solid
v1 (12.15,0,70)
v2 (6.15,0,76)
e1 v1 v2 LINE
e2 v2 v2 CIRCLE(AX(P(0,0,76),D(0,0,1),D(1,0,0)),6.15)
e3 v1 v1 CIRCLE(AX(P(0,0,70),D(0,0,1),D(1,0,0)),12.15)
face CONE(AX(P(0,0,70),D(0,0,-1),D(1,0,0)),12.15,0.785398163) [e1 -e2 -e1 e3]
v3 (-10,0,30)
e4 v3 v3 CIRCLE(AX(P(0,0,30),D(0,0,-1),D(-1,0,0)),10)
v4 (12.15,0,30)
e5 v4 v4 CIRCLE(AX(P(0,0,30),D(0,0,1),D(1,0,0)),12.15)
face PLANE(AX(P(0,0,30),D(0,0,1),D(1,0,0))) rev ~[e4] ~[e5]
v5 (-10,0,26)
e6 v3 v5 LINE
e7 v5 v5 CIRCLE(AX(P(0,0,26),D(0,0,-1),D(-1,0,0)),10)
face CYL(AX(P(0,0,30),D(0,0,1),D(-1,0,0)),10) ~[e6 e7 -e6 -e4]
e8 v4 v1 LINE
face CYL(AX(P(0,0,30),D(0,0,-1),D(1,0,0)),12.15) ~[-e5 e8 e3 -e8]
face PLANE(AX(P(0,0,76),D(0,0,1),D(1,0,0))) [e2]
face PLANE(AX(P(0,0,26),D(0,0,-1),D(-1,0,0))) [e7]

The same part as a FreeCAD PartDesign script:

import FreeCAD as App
import Part
import Sketcher
Q = App.Units.Quantity


def edges_at(feature, points):
    """Names of the edges that pass closest to the given points."""
    edges = feature.Shape.Edges
    near = lambda p: min(range(len(edges)), key=lambda i: edges[i].distToShape(Part.Vertex(*p))[0])
    return sorted({f"Edge{near(p) + 1}" for p in points})

doc = App.newDocument("Part")
body = doc.addObject("PartDesign::Body", "Body")

sketch1 = body.newObject("Sketcher::SketchObject", "Sketch")
sketch1.AttachmentSupport = (doc.getObject("XY_Plane"), [""])
sketch1.MapMode = "FlatFace"
sketch1.AttachmentOffset = App.Placement(App.Vector(0, 0, 30), App.Rotation())
sketch1.addGeometry(Part.Circle(App.Vector(0, 0, 0), App.Vector(0, 0, 1), 12.15), False)
sketch1.addConstraint([
    Sketcher.Constraint("Coincident", 0, 3, -1, 1),
    Sketcher.Constraint("Diameter", 0, Q("24.3 mm")),
])
pad1 = body.newObject("PartDesign::Pad", "Pad")
pad1.Profile = sketch1
pad1.Length = 46
doc.recompute()

chamfer = body.newObject("PartDesign::Chamfer", "Chamfer")
chamfer.Base = (pad1, edges_at(pad1, [(-12.15, 0, 76)]))
chamfer.Size = 6

sketch2 = body.newObject("Sketcher::SketchObject", "Sketch001")
sketch2.AttachmentSupport = (doc.getObject("XY_Plane"), [""])
sketch2.MapMode = "FlatFace"
sketch2.AttachmentOffset = App.Placement(App.Vector(0, 0, 30), App.Rotation())
sketch2.addGeometry(Part.Circle(App.Vector(0, 0, 0), App.Vector(0, 0, 1), 10), False)
sketch2.addConstraint([
    Sketcher.Constraint("Coincident", 0, 3, -1, 1),
    Sketcher.Constraint("Diameter", 0, Q("20 mm")),
])
pad2 = body.newObject("PartDesign::Pad", "Pad001")
pad2.Profile = sketch2
pad2.Length = 4
pad2.Reversed = True

doc.recompute()
